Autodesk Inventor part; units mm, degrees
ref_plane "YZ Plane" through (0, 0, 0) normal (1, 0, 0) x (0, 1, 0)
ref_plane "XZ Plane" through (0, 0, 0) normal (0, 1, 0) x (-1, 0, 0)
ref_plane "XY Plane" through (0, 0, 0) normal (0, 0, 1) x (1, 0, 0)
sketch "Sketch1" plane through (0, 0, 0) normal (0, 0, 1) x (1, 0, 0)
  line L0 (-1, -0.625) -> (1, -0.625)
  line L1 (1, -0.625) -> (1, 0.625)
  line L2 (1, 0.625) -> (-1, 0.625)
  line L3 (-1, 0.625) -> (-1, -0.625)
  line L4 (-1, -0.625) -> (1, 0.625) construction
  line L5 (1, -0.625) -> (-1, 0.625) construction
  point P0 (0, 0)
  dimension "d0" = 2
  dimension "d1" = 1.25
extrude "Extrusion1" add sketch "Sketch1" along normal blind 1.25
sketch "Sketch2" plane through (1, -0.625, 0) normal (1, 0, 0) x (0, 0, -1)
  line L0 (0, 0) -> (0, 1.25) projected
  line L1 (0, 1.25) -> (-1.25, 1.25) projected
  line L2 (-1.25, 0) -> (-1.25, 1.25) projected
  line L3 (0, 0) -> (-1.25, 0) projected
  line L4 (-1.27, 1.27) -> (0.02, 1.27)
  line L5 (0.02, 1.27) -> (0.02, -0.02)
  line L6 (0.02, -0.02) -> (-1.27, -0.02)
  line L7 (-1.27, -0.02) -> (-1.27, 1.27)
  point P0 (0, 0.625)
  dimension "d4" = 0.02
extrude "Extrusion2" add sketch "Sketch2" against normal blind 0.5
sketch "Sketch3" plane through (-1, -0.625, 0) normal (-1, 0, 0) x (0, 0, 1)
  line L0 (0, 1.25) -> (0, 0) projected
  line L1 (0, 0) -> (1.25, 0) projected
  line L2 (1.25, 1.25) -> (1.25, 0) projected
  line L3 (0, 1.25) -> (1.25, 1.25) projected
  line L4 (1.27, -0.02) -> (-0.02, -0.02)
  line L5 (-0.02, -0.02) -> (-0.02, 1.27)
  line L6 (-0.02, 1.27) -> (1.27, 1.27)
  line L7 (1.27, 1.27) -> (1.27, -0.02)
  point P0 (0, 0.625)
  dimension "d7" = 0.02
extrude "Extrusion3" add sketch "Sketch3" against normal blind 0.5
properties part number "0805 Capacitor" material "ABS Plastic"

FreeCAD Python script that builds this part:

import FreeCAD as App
import Part
import Sketcher
Q = App.Units.Quantity


def add_polygon(sketch, points):
    """Adds a closed chain of lines whose ends are joined by coincident constraints."""
    first, n = sketch.GeometryCount, len(points)
    for a, b in zip(points, points[1:] + points[:1]):
        sketch.addGeometry(Part.LineSegment(App.Vector(*a, 0), App.Vector(*b, 0)), False)
    for i in range(n):
        sketch.addConstraint(Sketcher.Constraint("Coincident", first + i, 2, first + (i + 1) % n, 1))

doc = App.newDocument("Part")
body = doc.addObject("PartDesign::Body", "Body")

# Sketch on XY plane
sketch1 = body.newObject("Sketcher::SketchObject", "Sketch")
sketch1.AttachmentSupport = (doc.getObject("XY_Plane"), [""])
sketch1.MapMode = "FlatFace"
add_polygon(sketch1, [(-1, 0.6), (-1, -0.6), (1, -0.6), (1, 0.6)])  # lines 0-3
sketch1.addConstraint([
    Sketcher.Constraint("Vertical", 0),
    Sketcher.Constraint("Horizontal", 1),
    Sketcher.Constraint("Vertical", 2),
    Sketcher.Constraint("Horizontal", 3),
    Sketcher.Constraint("Symmetric", 0, 2, 2, 2, -1, 1),
    Sketcher.Constraint("DistanceX", 1, 1, 1, 2, Q("2 mm")),
    Sketcher.Constraint("DistanceY", 0, 2, 0, 1, Q("1.25 mm")),
])
pad1 = body.newObject("PartDesign::Pad", "Pad")
pad1.Profile = sketch1
pad1.Length = 1.25

# Sketch on YZ plane
sketch2 = body.newObject("Sketcher::SketchObject", "Sketch001")
sketch2.AttachmentSupport = (doc.getObject("YZ_Plane"), [""])
sketch2.MapMode = "FlatFace"
sketch2.AttachmentOffset = App.Placement(App.Vector(0, 0, 1), App.Rotation())
add_polygon(sketch2, [(0.6, 0), (0.6, 1.3), (-0.6, 1.3), (-0.6, 0)])  # lines 0-3
add_polygon(sketch2, [(0.6, 0), (-0.6, 0), (-0.6, 1.2), (0.6, 1.2)])  # lines 4-7
sketch2.addConstraint([
    Sketcher.Constraint("Vertical", 0),
    Sketcher.Constraint("Horizontal", 1),
    Sketcher.Constraint("Vertical", 2),
    Sketcher.Constraint("Horizontal", 3),
    Sketcher.Constraint("Horizontal", 4),
    Sketcher.Constraint("Vertical", 5),
    Sketcher.Constraint("Horizontal", 6),
    Sketcher.Constraint("Vertical", 7),
    Sketcher.Constraint("Symmetric", 4, 2, 7, 2, -1, 1),
    Sketcher.Constraint("Equal", 3, 0),
    Sketcher.Constraint("Equal", 6, 5),
    Sketcher.Constraint("DistanceY", 2, 2, -1, 1, Q("0.02 mm")),
    Sketcher.Constraint("DistanceX", 2, 2, 4, 2, Q("0.02 mm")),
    Sketcher.Constraint("DistanceY", 5, 2, 1, 2, Q("0.02 mm")),
    Sketcher.Constraint("DistanceX", 1, 2, 1, 1, Q("1.29 mm")),
])
pad2 = body.newObject("PartDesign::Pad", "Pad001")
pad2.Profile = sketch2
pad2.Length = 0.5
pad2.Reversed = True

# Sketch on YZ plane
sketch3 = body.newObject("Sketcher::SketchObject", "Sketch002")
sketch3.AttachmentSupport = (doc.getObject("YZ_Plane"), [""])
sketch3.MapMode = "FlatFace"
sketch3.AttachmentOffset = App.Placement(App.Vector(0, 0, -1), App.Rotation())
add_polygon(sketch3, [(-0.6, 0), (-0.6, 1.3), (0.6, 1.3), (0.6, 0)])  # lines 0-3
add_polygon(sketch3, [(-0.6, 0), (0.6, 0), (0.6, 1.2), (-0.6, 1.2)])  # lines 4-7
sketch3.addConstraint([
    Sketcher.Constraint("Vertical", 0),
    Sketcher.Constraint("Horizontal", 1),
    Sketcher.Constraint("Vertical", 2),
    Sketcher.Constraint("Horizontal", 3),
    Sketcher.Constraint("Horizontal", 4),
    Sketcher.Constraint("Vertical", 5),
    Sketcher.Constraint("Horizontal", 6),
    Sketcher.Constraint("Vertical", 7),
    Sketcher.Constraint("Symmetric", 4, 2, 7, 2, -1, 1),
    Sketcher.Constraint("Equal", 3, 0),
    Sketcher.Constraint("Equal", 6, 5),
    Sketcher.Constraint("DistanceY", 2, 2, -1, 1, Q("0.02 mm")),
    Sketcher.Constraint("DistanceX", 4, 2, 2, 2, Q("0.02 mm")),
    Sketcher.Constraint("DistanceY", 5, 2, 1, 2, Q("0.02 mm")),
    Sketcher.Constraint("DistanceX", 1, 1, 1, 2, Q("1.29 mm")),
])
pad3 = body.newObject("PartDesign::Pad", "Pad002")
pad3.Profile = sketch3
pad3.Length = 0.5

doc.recompute()
